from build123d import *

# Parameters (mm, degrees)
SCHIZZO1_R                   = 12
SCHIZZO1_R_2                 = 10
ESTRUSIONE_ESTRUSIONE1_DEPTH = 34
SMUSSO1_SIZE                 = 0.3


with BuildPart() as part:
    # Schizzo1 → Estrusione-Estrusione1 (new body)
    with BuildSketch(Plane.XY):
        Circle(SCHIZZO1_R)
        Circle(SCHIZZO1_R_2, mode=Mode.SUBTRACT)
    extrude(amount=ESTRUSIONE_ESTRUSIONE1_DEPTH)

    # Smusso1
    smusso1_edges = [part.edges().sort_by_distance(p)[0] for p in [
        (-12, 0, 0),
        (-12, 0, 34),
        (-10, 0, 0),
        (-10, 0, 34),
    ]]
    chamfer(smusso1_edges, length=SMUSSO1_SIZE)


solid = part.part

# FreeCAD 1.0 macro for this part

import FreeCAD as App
import Part
import Sketcher
Q = App.Units.Quantity


def edges_at(feature, points):
    """Names of the edges that pass closest to the given points."""
    edges = feature.Shape.Edges
    near = lambda p: min(range(len(edges)), key=lambda i: edges[i].distToShape(Part.Vertex(*p))[0])
    return sorted({f"Edge{near(p) + 1}" for p in points})

doc = App.newDocument("Part")
body = doc.addObject("PartDesign::Body", "Body")

sketch1 = body.newObject("Sketcher::SketchObject", "Sketch")
sketch1.AttachmentSupport = (doc.getObject("XY_Plane"), [""])
sketch1.MapMode = "FlatFace"
sketch1.addGeometry([
    Part.Circle(App.Vector(0, 0, 0), App.Vector(0, 0, 1), 12),
    Part.Circle(App.Vector(0, 0, 0), App.Vector(0, 0, 1), 10),
], False)
sketch1.addConstraint([
    Sketcher.Constraint("Coincident", 0, 3, -1, 1),
    Sketcher.Constraint("Coincident", 1, 3, -1, 1),
    Sketcher.Constraint("Diameter", 0, Q("24 mm")),
    Sketcher.Constraint("Diameter", 1, Q("20 mm")),
])
pad1 = body.newObject("PartDesign::Pad", "Pad")
pad1.Profile = sketch1
pad1.Length = 34
doc.recompute()

chamfer = body.newObject("PartDesign::Chamfer", "Chamfer")
chamfer.Base = (pad1, edges_at(pad1, [
    (-12, 0, 0),
    (-12, 0, 34),
    (-10, 0, 0),
    (-10, 0, 34),
]))
chamfer.Size = 0.3

doc.recompute()
